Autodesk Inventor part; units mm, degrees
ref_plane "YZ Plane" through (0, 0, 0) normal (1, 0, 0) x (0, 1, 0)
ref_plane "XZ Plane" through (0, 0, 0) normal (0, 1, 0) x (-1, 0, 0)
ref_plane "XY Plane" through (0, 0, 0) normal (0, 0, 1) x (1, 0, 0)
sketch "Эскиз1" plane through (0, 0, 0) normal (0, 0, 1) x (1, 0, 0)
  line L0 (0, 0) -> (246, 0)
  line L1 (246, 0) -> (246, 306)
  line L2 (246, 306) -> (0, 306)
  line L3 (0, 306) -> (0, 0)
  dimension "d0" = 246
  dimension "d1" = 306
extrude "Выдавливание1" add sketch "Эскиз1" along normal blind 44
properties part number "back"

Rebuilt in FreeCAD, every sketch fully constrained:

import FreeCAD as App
import Part
import Sketcher

V = App.Vector

doc = App.newDocument("Part")
params = doc.addObject("Spreadsheet::Sheet", "Params")
for row, (alias, value) in enumerate([
    ("sketch1_width", "246 mm"),
    ("sketch1_height", "306 mm"),
    ("pad1_length", "44 mm"),
], start=1):
    params.set(f"A{row}", alias)
    params.set(f"B{row}", "=" + value)
    params.setAlias(f"B{row}", alias)

body = doc.addObject("PartDesign::Body", "Body")

sketch1 = doc.addObject("Sketcher::SketchObject", "Sketch")
body.addObject(sketch1)
sketch1.AttachmentSupport = (doc.XY_Plane, [""])
sketch1.MapMode = "FlatFace"
sketch1.addGeometry([
    Part.LineSegment(V(0, 306, 0), V(0, 0, 0)),
    Part.LineSegment(V(0, 0, 0), V(246, 0, 0)),
    Part.LineSegment(V(246, 0, 0), V(246, 306, 0)),
    Part.LineSegment(V(246, 306, 0), V(0, 306, 0)),
], False)
sketch1.addConstraint([
    Sketcher.Constraint("Coincident", 0, 2, 1, 1),
    Sketcher.Constraint("Coincident", 1, 2, 2, 1),
    Sketcher.Constraint("Coincident", 2, 2, 3, 1),
    Sketcher.Constraint("Coincident", 3, 2, 0, 1),
    Sketcher.Constraint("Vertical", 0),
    Sketcher.Constraint("Horizontal", 1),
    Sketcher.Constraint("Vertical", 2),
    Sketcher.Constraint("Horizontal", 3),
    Sketcher.Constraint("Coincident", 0, 2, -1, 1),
    Sketcher.Constraint("DistanceX", 1, 1, 1, 2, 246.0),
    Sketcher.Constraint("DistanceY", 0, 2, 0, 1, 306.0),
])
sketch1.setExpression("Constraints[9]", "Params.sketch1_width")
sketch1.setExpression("Constraints[10]", "Params.sketch1_height")
pad1 = doc.addObject("PartDesign::Pad", "Pad")
body.addObject(pad1)
pad1.Profile = sketch1
pad1.setExpression("Length", "Params.pad1_length")

doc.recompute()
